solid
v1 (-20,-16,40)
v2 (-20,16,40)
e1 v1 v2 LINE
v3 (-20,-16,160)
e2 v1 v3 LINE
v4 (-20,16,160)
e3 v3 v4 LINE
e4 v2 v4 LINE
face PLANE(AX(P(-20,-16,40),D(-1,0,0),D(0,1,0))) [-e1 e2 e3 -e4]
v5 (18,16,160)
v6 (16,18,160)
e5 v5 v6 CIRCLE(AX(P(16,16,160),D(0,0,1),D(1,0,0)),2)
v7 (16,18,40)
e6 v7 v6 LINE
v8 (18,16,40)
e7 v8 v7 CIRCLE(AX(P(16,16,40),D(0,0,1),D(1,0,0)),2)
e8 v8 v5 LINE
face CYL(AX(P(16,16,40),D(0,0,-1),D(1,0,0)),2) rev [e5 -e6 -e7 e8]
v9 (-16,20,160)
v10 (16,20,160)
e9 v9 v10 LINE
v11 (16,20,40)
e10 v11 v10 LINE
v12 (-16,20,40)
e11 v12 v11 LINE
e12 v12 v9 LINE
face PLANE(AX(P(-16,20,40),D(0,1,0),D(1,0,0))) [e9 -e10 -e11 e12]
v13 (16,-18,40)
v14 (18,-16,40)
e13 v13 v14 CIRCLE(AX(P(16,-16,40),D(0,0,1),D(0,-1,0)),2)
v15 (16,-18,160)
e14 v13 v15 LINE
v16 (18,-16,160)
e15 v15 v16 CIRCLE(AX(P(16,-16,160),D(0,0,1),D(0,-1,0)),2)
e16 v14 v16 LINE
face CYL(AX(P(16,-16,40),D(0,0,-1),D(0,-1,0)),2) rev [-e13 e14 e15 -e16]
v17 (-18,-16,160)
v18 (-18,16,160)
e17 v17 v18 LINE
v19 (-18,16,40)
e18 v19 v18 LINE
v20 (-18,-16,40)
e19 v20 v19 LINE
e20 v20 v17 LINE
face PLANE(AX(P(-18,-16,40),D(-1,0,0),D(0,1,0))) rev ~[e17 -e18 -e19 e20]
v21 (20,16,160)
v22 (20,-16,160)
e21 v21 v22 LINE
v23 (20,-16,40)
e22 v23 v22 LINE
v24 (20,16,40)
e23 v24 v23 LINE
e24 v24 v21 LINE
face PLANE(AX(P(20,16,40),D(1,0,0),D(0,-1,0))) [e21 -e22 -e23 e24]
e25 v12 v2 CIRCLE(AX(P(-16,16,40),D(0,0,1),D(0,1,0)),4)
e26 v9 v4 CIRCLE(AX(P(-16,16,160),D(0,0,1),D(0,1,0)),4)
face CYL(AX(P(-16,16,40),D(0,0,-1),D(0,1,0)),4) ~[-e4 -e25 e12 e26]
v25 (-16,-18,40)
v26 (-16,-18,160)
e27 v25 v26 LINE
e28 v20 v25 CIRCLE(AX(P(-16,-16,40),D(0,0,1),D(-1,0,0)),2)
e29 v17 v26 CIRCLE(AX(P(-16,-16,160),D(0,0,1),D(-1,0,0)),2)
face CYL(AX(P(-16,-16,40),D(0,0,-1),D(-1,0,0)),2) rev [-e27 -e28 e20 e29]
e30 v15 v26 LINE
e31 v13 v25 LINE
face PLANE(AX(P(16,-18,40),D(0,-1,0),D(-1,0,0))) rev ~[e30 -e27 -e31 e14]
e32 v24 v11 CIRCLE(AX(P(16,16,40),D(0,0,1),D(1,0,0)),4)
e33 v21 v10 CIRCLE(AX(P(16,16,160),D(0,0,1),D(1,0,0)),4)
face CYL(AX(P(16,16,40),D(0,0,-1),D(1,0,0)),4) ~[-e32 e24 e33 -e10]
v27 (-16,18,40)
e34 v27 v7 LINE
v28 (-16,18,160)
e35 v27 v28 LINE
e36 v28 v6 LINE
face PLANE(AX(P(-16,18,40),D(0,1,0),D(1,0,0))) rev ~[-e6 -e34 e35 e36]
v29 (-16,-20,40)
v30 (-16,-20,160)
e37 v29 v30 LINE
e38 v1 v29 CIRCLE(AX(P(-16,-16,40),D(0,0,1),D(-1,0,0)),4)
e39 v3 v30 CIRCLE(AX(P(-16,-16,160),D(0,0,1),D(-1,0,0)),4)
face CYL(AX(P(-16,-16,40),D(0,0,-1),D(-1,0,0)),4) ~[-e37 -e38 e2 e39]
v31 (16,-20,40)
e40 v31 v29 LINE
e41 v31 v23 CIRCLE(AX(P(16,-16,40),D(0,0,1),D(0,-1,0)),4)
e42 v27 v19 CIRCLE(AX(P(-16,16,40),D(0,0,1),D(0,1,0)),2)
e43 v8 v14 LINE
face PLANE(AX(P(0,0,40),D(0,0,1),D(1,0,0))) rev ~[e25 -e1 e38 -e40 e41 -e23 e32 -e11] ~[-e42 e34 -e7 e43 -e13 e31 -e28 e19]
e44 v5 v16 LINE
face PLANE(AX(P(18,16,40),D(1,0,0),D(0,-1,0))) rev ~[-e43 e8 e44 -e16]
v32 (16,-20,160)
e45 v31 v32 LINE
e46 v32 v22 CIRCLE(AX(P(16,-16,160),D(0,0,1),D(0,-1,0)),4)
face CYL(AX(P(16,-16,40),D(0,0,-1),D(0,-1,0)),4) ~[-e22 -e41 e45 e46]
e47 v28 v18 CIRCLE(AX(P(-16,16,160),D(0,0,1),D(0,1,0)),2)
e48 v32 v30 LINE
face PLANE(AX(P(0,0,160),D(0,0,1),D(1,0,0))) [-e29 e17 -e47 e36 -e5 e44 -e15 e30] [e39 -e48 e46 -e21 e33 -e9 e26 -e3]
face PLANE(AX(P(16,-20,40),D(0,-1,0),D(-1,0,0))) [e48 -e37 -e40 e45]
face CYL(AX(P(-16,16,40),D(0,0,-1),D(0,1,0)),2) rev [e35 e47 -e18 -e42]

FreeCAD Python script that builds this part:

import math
import FreeCAD as App
import Part
import Sketcher

V = App.Vector

doc = App.newDocument("Part")
body = doc.addObject("PartDesign::Body", "Body")

# Sketch on XY plane
sketch1 = body.newObject("Sketcher::SketchObject", "Sketch")
sketch1.AttachmentSupport = (doc.getObject("XY_Plane"), [""])
sketch1.MapMode = "FlatFace"
sketch1.AttachmentOffset = App.Placement(V(0, 0, 40), App.Rotation())
sketch1.addGeometry([
    Part.LineSegment(V(-20, 16, 0), V(-20, -16, 0)),  # 0
    Part.ArcOfCircle(Part.Circle(V(-16, -16, 0), V(0, 0, 1), 4), math.radians(180), math.radians(270)),  # 1
    Part.LineSegment(V(-16, -20, 0), V(16, -20, 0)),  # 2
    Part.ArcOfCircle(Part.Circle(V(16, -16, 0), V(0, 0, 1), 4), math.radians(-90), math.radians(0)),  # 3
    Part.LineSegment(V(20, -16, 0), V(20, 16, 0)),  # 4
    Part.ArcOfCircle(Part.Circle(V(16, 16, 0), V(0, 0, 1), 4), math.radians(0), math.radians(90)),  # 5
    Part.LineSegment(V(16, 20, 0), V(-16, 20, 0)),  # 6
    Part.ArcOfCircle(Part.Circle(V(-16, 16, 0), V(0, 0, 1), 4), math.radians(90), math.radians(180)),  # 7
    Part.ArcOfCircle(Part.Circle(V(-16, 16, 0), V(0, 0, 1), 2), math.radians(90), math.radians(180)),  # 8
    Part.LineSegment(V(-16, 18, 0), V(16, 18, 0)),  # 9
    Part.ArcOfCircle(Part.Circle(V(16, 16, 0), V(0, 0, 1), 2), math.radians(0), math.radians(90)),  # 10
    Part.LineSegment(V(18, 16, 0), V(18, -16, 0)),  # 11
    Part.ArcOfCircle(Part.Circle(V(16, -16, 0), V(0, 0, 1), 2), math.radians(-90), math.radians(0)),  # 12
    Part.LineSegment(V(16, -18, 0), V(-16, -18, 0)),  # 13
    Part.ArcOfCircle(Part.Circle(V(-16, -16, 0), V(0, 0, 1), 2), math.radians(180), math.radians(270)),  # 14
    Part.LineSegment(V(-18, -16, 0), V(-18, 16, 0)),  # 15
], False)
sketch1.addConstraint([
    Sketcher.Constraint("Tangent", 0, 2, 1, 1),
    Sketcher.Constraint("Tangent", 1, 2, 2, 1),
    Sketcher.Constraint("Tangent", 2, 2, 3, 1),
    Sketcher.Constraint("Tangent", 3, 2, 4, 1),
    Sketcher.Constraint("Tangent", 4, 2, 5, 1),
    Sketcher.Constraint("Tangent", 5, 2, 6, 1),
    Sketcher.Constraint("Tangent", 6, 2, 7, 1),
    Sketcher.Constraint("Tangent", 7, 2, 0, 1),
    Sketcher.Constraint("Tangent", 8, 1, 9, 1),
    Sketcher.Constraint("Tangent", 9, 2, 10, 2),
    Sketcher.Constraint("Tangent", 10, 1, 11, 1),
    Sketcher.Constraint("Tangent", 11, 2, 12, 2),
    Sketcher.Constraint("Tangent", 12, 1, 13, 1),
    Sketcher.Constraint("Tangent", 13, 2, 14, 2),
    Sketcher.Constraint("Tangent", 14, 1, 15, 1),
    Sketcher.Constraint("Tangent", 15, 2, 8, 2),
    Sketcher.Constraint("Vertical", 0),
    Sketcher.Constraint("Horizontal", 2),
    Sketcher.Constraint("Vertical", 4),
    Sketcher.Constraint("Horizontal", 6),
    Sketcher.Constraint("Horizontal", 9),
    Sketcher.Constraint("Vertical", 11),
    Sketcher.Constraint("Horizontal", 13),
    Sketcher.Constraint("Vertical", 15),
    Sketcher.Constraint("Coincident", 8, 3, 7, 3),
    Sketcher.Constraint("Coincident", 10, 3, 5, 3),
    Sketcher.Constraint("Coincident", 12, 3, 3, 3),
    Sketcher.Constraint("Equal", 1, 3),
    Sketcher.Constraint("Equal", 3, 5),
    Sketcher.Constraint("Equal", 5, 7),
    Sketcher.Constraint("Equal", 12, 14),
    Sketcher.Constraint("Symmetric", 1, 3, 5, 3, -1, 1),
    Sketcher.Constraint("Equal", 13, 0),
    Sketcher.Constraint("Radius", 1, 4.0),
    Sketcher.Constraint("Radius", 8, 2.0),
    Sketcher.Constraint("DistanceX", 0, 2, -1, 1, 20.0),
])
pad1 = body.newObject("PartDesign::Pad", "Pad")
pad1.Profile = sketch1
pad1.Length = 120

doc.recompute()
